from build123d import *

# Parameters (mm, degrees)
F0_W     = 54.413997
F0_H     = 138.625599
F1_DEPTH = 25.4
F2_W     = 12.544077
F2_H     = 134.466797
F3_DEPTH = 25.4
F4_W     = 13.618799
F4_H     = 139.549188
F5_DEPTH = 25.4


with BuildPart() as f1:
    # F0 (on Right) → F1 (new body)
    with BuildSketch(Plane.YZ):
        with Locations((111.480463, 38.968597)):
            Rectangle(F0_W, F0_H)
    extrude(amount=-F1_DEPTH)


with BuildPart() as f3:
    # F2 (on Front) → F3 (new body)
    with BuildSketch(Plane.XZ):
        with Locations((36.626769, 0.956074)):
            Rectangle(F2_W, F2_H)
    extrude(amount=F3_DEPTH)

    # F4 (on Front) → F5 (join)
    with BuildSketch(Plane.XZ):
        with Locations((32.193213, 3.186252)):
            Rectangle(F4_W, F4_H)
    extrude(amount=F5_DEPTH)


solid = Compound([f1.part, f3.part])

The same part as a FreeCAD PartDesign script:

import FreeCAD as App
import Part
import Sketcher

V = App.Vector
Q = App.Units.Quantity

doc = App.newDocument("Part")
body = doc.addObject("PartDesign::Body", "Body")

sketch1 = doc.addObject("Sketcher::SketchObject", "Sketch")
body.addObject(sketch1)
sketch1.AttachmentSupport = (doc.YZ_Plane, [""])
sketch1.MapMode = "FlatFace"
sketch1.addGeometry([
    Part.LineSegment(V(84.273465, 108.281396, 0), V(84.273465, -30.344203, 0)),
    Part.LineSegment(V(84.273465, -30.344203, 0), V(138.687462, -30.344203, 0)),
    Part.LineSegment(V(138.687462, -30.344203, 0), V(138.687462, 108.281396, 0)),
    Part.LineSegment(V(138.687462, 108.281396, 0), V(84.273465, 108.281396, 0)),
], False)
sketch1.addConstraint([
    Sketcher.Constraint("Coincident", 0, 2, 1, 1),
    Sketcher.Constraint("Coincident", 1, 2, 2, 1),
    Sketcher.Constraint("Coincident", 2, 2, 3, 1),
    Sketcher.Constraint("Coincident", 3, 2, 0, 1),
    Sketcher.Constraint("Vertical", 0),
    Sketcher.Constraint("Horizontal", 1),
    Sketcher.Constraint("Vertical", 2),
    Sketcher.Constraint("Horizontal", 3),
    Sketcher.Constraint("DistanceY", 0, 2, 0, 1, Q("138.625599 mm")),
    Sketcher.Constraint("DistanceX", 1, 1, 1, 2, Q("54.413997 mm")),
    Sketcher.Constraint("DistanceX", -1, 1, 1, 2, Q("138.687462 mm")),
    Sketcher.Constraint("DistanceY", 0, 2, -1, 1, Q("30.344203 mm")),
])
pad1 = doc.addObject("PartDesign::Pad", "Pad")
body.addObject(pad1)
pad1.Profile = sketch1
pad1.Length = Q("1 in")
pad1.Reversed = True
body2 = doc.addObject("PartDesign::Body", "Body001")

sketch2 = doc.addObject("Sketcher::SketchObject", "Sketch001")
body2.addObject(sketch2)
sketch2.AttachmentSupport = (doc.getObject("XZ_Plane001"), [""])
sketch2.MapMode = "FlatFace"
sketch2.addGeometry([
    Part.LineSegment(V(30.35473, 68.189472, 0), V(30.35473, -66.277325, 0)),
    Part.LineSegment(V(30.35473, -66.277325, 0), V(42.898807, -66.277325, 0)),
    Part.LineSegment(V(42.898807, -66.277325, 0), V(42.898807, 68.189472, 0)),
    Part.LineSegment(V(42.898807, 68.189472, 0), V(30.35473, 68.189472, 0)),
], False)
sketch2.addConstraint([
    Sketcher.Constraint("Coincident", 0, 2, 1, 1),
    Sketcher.Constraint("Coincident", 1, 2, 2, 1),
    Sketcher.Constraint("Coincident", 2, 2, 3, 1),
    Sketcher.Constraint("Coincident", 3, 2, 0, 1),
    Sketcher.Constraint("Vertical", 0),
    Sketcher.Constraint("Horizontal", 1),
    Sketcher.Constraint("Vertical", 2),
    Sketcher.Constraint("Horizontal", 3),
    Sketcher.Constraint("DistanceX", 1, 1, 1, 2, Q("12.544077 mm")),
    Sketcher.Constraint("DistanceY", 0, 2, 0, 1, Q("134.466797 mm")),
    Sketcher.Constraint("DistanceX", -1, 1, 0, 2, Q("30.35473 mm")),
    Sketcher.Constraint("DistanceY", 0, 2, -1, 1, Q("66.277325 mm")),
])
pad2 = doc.addObject("PartDesign::Pad", "Pad001")
body2.addObject(pad2)
pad2.Profile = sketch2
pad2.Length = Q("1 in")

sketch3 = doc.addObject("Sketcher::SketchObject", "Sketch002")
body2.addObject(sketch3)
sketch3.AttachmentSupport = (doc.getObject("XZ_Plane001"), [""])
sketch3.MapMode = "FlatFace"
sketch3.addGeometry([
    Part.LineSegment(V(25.383813, 72.960846, 0), V(25.383813, -66.588342, 0)),
    Part.LineSegment(V(25.383813, -66.588342, 0), V(39.002612, -66.588342, 0)),
    Part.LineSegment(V(39.002612, -66.588342, 0), V(39.002612, 72.960846, 0)),
    Part.LineSegment(V(39.002612, 72.960846, 0), V(25.383813, 72.960846, 0)),
], False)
sketch3.addConstraint([
    Sketcher.Constraint("Coincident", 0, 2, 1, 1),
    Sketcher.Constraint("Coincident", 1, 2, 2, 1),
    Sketcher.Constraint("Coincident", 2, 2, 3, 1),
    Sketcher.Constraint("Coincident", 3, 2, 0, 1),
    Sketcher.Constraint("Vertical", 0),
    Sketcher.Constraint("Horizontal", 1),
    Sketcher.Constraint("Vertical", 2),
    Sketcher.Constraint("Horizontal", 3),
    Sketcher.Constraint("DistanceX", 1, 1, 1, 2, Q("13.618799 mm")),
    Sketcher.Constraint("DistanceY", 0, 2, 0, 1, Q("139.549188 mm")),
    Sketcher.Constraint("DistanceY", 0, 2, -1, 1, Q("66.588342 mm")),
    Sketcher.Constraint("DistanceX", -1, 1, 0, 2, Q("25.383813 mm")),
])
pad3 = doc.addObject("PartDesign::Pad", "Pad002")
body2.addObject(pad3)
pad3.Profile = sketch3
pad3.Length = Q("1 in")

doc.recompute()
